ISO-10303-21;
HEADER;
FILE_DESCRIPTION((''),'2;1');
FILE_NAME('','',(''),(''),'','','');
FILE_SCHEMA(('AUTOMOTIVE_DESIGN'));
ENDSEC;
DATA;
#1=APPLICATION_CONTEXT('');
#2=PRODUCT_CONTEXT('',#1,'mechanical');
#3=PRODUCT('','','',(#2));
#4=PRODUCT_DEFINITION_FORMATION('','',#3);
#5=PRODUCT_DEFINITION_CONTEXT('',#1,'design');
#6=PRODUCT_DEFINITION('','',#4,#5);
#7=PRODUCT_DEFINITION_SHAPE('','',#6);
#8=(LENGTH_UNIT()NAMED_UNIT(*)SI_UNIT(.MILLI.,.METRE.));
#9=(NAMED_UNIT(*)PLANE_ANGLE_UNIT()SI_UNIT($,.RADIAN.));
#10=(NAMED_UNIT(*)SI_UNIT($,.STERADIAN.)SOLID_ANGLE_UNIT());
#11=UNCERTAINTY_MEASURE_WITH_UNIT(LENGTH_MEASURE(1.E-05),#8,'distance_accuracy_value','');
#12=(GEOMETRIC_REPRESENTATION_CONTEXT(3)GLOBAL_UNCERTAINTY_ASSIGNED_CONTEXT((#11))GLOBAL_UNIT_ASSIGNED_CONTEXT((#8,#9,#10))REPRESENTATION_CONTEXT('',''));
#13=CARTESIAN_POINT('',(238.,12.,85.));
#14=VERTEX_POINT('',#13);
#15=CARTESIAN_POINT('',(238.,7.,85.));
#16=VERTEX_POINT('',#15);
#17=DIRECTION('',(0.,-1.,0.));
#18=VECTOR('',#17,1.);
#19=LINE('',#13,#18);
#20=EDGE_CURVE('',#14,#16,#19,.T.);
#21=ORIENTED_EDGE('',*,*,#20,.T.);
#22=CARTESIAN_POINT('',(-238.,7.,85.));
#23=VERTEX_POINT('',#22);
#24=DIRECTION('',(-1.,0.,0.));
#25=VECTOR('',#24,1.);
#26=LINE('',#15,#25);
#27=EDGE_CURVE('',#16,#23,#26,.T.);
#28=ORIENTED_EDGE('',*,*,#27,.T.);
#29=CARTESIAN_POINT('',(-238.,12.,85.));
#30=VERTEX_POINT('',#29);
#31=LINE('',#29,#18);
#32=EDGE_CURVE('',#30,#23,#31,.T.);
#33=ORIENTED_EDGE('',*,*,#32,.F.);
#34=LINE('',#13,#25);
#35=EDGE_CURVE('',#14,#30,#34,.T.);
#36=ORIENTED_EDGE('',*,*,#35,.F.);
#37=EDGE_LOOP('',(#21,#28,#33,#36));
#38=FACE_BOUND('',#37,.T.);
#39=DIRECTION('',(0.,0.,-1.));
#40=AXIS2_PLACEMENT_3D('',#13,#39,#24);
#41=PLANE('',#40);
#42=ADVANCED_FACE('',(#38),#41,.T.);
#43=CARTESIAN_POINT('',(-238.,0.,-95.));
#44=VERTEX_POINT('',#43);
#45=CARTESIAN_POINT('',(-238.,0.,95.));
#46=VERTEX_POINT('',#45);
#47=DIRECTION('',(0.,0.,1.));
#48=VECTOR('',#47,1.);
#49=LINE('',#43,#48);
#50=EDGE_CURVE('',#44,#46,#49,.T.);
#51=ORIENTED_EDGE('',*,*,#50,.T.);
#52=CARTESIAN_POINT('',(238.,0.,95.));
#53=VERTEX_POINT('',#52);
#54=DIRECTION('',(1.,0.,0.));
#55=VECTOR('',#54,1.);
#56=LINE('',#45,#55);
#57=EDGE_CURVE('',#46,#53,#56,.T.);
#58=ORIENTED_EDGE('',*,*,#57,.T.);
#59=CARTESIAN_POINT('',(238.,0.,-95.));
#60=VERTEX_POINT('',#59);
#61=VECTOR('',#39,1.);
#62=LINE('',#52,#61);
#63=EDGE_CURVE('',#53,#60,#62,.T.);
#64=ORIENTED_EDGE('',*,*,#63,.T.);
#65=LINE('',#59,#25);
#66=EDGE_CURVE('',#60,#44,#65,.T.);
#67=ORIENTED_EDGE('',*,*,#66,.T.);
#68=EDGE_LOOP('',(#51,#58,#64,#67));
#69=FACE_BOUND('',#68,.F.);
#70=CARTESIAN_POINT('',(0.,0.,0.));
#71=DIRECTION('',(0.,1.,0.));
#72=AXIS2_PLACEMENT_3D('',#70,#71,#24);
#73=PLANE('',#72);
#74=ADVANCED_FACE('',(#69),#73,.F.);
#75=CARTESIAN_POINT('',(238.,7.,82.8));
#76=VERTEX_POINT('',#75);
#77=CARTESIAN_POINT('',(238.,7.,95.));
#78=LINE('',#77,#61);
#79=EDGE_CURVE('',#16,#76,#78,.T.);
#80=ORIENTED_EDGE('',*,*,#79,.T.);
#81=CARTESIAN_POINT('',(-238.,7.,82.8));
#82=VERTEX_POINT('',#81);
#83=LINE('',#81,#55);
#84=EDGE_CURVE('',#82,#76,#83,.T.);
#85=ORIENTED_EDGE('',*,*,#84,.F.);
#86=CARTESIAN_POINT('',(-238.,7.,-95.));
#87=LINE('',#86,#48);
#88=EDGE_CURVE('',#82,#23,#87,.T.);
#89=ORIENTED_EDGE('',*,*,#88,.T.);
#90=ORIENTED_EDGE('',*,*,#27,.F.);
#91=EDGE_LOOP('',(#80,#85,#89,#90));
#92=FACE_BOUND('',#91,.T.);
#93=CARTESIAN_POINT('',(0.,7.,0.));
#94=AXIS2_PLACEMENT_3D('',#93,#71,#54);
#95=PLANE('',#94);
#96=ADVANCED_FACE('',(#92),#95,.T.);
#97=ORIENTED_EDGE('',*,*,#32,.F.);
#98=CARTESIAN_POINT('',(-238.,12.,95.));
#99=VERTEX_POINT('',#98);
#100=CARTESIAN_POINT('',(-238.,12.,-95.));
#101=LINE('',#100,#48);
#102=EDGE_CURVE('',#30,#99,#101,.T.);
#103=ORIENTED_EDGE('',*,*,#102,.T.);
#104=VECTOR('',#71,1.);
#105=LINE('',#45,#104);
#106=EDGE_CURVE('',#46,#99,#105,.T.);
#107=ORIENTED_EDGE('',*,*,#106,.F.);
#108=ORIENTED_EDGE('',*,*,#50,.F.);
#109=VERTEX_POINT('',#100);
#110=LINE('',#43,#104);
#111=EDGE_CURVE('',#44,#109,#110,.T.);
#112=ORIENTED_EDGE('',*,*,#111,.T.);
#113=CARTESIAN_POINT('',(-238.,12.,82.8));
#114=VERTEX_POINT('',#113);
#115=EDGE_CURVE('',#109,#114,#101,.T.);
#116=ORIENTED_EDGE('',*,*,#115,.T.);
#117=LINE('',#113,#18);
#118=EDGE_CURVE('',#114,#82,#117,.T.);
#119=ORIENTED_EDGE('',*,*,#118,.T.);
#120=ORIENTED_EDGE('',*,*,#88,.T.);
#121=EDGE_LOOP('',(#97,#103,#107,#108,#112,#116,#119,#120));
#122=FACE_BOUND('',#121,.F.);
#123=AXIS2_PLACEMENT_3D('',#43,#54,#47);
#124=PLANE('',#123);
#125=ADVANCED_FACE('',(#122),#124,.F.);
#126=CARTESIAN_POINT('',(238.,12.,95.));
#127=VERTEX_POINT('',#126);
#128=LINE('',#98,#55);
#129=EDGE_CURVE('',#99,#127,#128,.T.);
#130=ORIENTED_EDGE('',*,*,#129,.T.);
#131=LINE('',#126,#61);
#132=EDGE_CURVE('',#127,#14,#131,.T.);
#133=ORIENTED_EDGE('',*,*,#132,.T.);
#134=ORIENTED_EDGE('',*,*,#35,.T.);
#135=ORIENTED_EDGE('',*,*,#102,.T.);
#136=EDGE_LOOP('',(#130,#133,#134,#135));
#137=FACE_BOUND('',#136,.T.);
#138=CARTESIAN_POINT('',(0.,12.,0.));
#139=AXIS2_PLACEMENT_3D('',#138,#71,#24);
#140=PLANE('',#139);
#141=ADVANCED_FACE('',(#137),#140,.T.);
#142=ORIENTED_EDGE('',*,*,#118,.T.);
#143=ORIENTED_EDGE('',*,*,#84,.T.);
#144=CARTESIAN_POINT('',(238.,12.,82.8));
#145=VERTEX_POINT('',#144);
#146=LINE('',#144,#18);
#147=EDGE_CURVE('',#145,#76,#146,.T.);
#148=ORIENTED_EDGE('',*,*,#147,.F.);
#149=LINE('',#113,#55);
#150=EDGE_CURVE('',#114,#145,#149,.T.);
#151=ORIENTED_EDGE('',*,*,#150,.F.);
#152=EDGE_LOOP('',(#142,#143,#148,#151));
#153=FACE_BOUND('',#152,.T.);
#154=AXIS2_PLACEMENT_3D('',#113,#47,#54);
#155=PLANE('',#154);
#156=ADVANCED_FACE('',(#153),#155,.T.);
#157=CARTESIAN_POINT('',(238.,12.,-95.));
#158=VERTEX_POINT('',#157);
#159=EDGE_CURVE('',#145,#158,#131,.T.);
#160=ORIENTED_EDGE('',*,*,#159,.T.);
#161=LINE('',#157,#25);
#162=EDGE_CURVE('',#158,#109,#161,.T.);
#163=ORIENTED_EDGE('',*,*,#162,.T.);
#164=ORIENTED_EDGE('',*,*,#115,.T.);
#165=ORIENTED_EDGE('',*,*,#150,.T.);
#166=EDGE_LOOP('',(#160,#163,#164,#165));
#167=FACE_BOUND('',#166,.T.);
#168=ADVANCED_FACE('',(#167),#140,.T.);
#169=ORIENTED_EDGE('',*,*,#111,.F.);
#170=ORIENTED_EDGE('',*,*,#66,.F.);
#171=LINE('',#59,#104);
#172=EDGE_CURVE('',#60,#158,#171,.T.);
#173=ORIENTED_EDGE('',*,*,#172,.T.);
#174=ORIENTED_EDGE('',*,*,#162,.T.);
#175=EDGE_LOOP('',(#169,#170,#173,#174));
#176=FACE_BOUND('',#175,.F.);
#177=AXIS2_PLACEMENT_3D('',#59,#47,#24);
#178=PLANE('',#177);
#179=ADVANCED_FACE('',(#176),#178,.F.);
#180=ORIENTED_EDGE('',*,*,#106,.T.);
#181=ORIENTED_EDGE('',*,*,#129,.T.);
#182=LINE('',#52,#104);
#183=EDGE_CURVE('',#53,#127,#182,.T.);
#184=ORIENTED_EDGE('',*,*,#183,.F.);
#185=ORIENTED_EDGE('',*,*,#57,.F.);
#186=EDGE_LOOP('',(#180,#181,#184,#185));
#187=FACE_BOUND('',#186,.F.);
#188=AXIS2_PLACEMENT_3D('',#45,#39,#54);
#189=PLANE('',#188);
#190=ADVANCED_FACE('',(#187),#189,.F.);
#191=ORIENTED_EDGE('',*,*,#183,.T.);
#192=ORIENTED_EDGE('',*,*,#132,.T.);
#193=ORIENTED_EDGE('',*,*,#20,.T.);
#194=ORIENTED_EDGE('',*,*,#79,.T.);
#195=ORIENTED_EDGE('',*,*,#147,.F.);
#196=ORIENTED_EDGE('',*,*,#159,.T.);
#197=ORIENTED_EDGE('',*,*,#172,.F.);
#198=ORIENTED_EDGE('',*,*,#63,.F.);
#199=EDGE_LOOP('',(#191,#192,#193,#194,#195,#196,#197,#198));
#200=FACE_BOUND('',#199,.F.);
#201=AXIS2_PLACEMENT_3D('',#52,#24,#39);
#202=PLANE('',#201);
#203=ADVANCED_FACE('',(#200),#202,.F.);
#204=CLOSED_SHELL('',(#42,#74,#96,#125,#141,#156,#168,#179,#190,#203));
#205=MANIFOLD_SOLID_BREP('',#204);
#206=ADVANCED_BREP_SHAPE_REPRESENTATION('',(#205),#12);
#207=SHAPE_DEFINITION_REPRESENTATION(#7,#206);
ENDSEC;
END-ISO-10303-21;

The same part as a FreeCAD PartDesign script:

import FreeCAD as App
import Part
import Sketcher
Q = App.Units.Quantity


def add_polygon(sketch, points):
    """Adds a closed chain of lines whose ends are joined by coincident constraints."""
    first, n = sketch.GeometryCount, len(points)
    for a, b in zip(points, points[1:] + points[:1]):
        sketch.addGeometry(Part.LineSegment(App.Vector(*a, 0), App.Vector(*b, 0)), False)
    for i in range(n):
        sketch.addConstraint(Sketcher.Constraint("Coincident", first + i, 2, first + (i + 1) % n, 1))

doc = App.newDocument("Part")
params = doc.addObject("Spreadsheet::Sheet", "Params")
for row, (alias, value) in enumerate([
    ("sketch1_width", "476 mm"),
    ("sketch1_height", "190 mm"),
    ("pad1_length", "12 mm"),
    ("sketch2_height", "2.2 mm"),
    ("sketch2_width", "476 mm"),
    ("pocket1_length", "5 mm"),
], start=1):
    params.set(f"A{row}", alias)
    params.set(f"B{row}", "=" + value)
    params.setAlias(f"B{row}", alias)

body = doc.addObject("PartDesign::Body", "Body")

sketch1 = doc.addObject("Sketcher::SketchObject", "Sketch")
body.addObject(sketch1)
sketch1.AttachmentSupport = (doc.XZ_Plane, [""])
sketch1.MapMode = "FlatFace"
add_polygon(sketch1, [(-238, -95), (-238, 95), (238, 95), (238, -95)])
sketch1.addConstraint([
    Sketcher.Constraint("Vertical", 0),
    Sketcher.Constraint("Horizontal", 1),
    Sketcher.Constraint("Vertical", 2),
    Sketcher.Constraint("Horizontal", 3),
    Sketcher.Constraint("Symmetric", 0, 2, 2, 2, -1, 1),
    Sketcher.Constraint("DistanceX", 1, 1, 1, 2, Q("476 mm")),
    Sketcher.Constraint("DistanceY", 0, 1, 0, 2, Q("190 mm")),
])
sketch1.setExpression("Constraints[9]", "Params.sketch1_width")
sketch1.setExpression("Constraints[10]", "Params.sketch1_height")
pad1 = doc.addObject("PartDesign::Pad", "Pad")
body.addObject(pad1)
pad1.Profile = sketch1
pad1.setExpression("Length", "Params.pad1_length")
pad1.Reversed = True

sketch2 = doc.addObject("Sketcher::SketchObject", "Sketch001")
body.addObject(sketch2)
sketch2.AttachmentSupport = (doc.XZ_Plane, [""])
sketch2.MapMode = "FlatFace"
sketch2.AttachmentOffset = App.Placement(App.Vector(0, 0, -12), App.Rotation())
add_polygon(sketch2, [(-238, 85), (238, 85), (238, 82.8), (-238, 82.8)])
sketch2.addConstraint([
    Sketcher.Constraint("Horizontal", 0),
    Sketcher.Constraint("Vertical", 1),
    Sketcher.Constraint("Horizontal", 2),
    Sketcher.Constraint("Vertical", 3),
    Sketcher.Constraint("DistanceY", 1, 2, 1, 1, Q("2.2 mm")),
    Sketcher.Constraint("DistanceX", 0, 1, 0, 2, Q("476 mm")),
    Sketcher.Constraint("DistanceX", -1, 1, 0, 2, Q("238 mm")),
    Sketcher.Constraint("DistanceY", -1, 1, 0, 2, Q("85 mm")),
])
sketch2.setExpression("Constraints[8]", "Params.sketch2_height")
sketch2.setExpression("Constraints[9]", "Params.sketch2_width")
pocket1 = doc.addObject("PartDesign::Pocket", "Pocket")
body.addObject(pocket1)
pocket1.Profile = sketch2
pocket1.setExpression("Length", "Params.pocket1_length")
pocket1.Reversed = True

doc.recompute()
